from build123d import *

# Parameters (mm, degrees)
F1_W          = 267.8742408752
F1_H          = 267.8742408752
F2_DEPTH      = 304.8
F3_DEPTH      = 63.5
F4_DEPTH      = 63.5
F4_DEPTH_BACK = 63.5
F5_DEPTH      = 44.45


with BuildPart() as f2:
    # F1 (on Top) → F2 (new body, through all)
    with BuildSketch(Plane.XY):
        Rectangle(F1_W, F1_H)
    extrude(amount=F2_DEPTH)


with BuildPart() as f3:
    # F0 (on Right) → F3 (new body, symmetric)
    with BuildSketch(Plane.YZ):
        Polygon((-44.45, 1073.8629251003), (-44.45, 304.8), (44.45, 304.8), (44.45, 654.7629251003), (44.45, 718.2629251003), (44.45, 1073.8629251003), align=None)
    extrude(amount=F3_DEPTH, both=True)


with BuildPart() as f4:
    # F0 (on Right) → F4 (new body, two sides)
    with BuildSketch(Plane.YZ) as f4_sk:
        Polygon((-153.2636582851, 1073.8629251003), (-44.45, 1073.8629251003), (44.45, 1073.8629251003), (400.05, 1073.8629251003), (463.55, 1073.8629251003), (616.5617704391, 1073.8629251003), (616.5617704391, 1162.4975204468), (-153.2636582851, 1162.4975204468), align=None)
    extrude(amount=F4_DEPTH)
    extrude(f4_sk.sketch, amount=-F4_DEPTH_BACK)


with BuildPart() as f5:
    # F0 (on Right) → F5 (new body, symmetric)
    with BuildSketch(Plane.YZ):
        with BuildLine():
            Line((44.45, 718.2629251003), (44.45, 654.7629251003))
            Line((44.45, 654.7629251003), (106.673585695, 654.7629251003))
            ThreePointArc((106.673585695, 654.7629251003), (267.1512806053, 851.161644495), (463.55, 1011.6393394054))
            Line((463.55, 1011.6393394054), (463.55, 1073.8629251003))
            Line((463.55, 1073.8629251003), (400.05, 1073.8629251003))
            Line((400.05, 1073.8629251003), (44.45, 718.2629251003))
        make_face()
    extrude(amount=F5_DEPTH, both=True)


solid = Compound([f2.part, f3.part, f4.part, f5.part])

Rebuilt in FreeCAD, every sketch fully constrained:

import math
import FreeCAD as App
import Part
import Sketcher
from FreeCAD import Vector
Q = App.Units.Quantity

doc = App.newDocument("Part")
body = doc.addObject("PartDesign::Body", "Body")

# Sketch on XY plane
sketch1 = body.newObject("Sketcher::SketchObject", "Sketch")
sketch1.AttachmentSupport = (doc.getObject("XY_Plane"), [""])
sketch1.MapMode = "FlatFace"
sketch1.addGeometry([
    Part.LineSegment(Vector(-134, 134, 0), Vector(-134, -134, 0)),
    Part.LineSegment(Vector(-134, -134, 0), Vector(134, -134, 0)),
    Part.LineSegment(Vector(134, -134, 0), Vector(134, 134, 0)),
    Part.LineSegment(Vector(134, 134, 0), Vector(-134, 134, 0)),
], False)
sketch1.addConstraint([
    Sketcher.Constraint("Coincident", 0, 2, 1, 1),
    Sketcher.Constraint("Coincident", 1, 2, 2, 1),
    Sketcher.Constraint("Coincident", 2, 2, 3, 1),
    Sketcher.Constraint("Coincident", 3, 2, 0, 1),
    Sketcher.Constraint("Vertical", 0),
    Sketcher.Constraint("Horizontal", 1),
    Sketcher.Constraint("Vertical", 2),
    Sketcher.Constraint("Horizontal", 3),
    Sketcher.Constraint("Symmetric", 0, 2, 2, 2, -1, 1),
    Sketcher.Constraint("Equal", 3, 0),
    Sketcher.Constraint("DistanceX", 1, 1, 1, 2, Q("267.874241 mm")),
])
pad1 = body.newObject("PartDesign::Pad", "Pad")
pad1.Profile = sketch1
pad1.Length = Q("12 in")
body2 = doc.addObject("PartDesign::Body", "Body001")

# Sketch on YZ plane
sketch2 = body2.newObject("Sketcher::SketchObject", "Sketch001")
sketch2.AttachmentSupport = (doc.getObject("YZ_Plane001"), [""])
sketch2.MapMode = "FlatFace"
sketch2.addGeometry([
    Part.LineSegment(Vector(-44, 1074, 0), Vector(-44, 305, 0)),
    Part.LineSegment(Vector(-44, 305, 0), Vector(44, 305, 0)),
    Part.LineSegment(Vector(44, 305, 0), Vector(44, 1074, 0)),
    Part.LineSegment(Vector(44, 1074, 0), Vector(-44, 1074, 0)),
], False)
sketch2.addConstraint([
    Sketcher.Constraint("Coincident", 0, 2, 1, 1),
    Sketcher.Constraint("Coincident", 1, 2, 2, 1),
    Sketcher.Constraint("Coincident", 2, 2, 3, 1),
    Sketcher.Constraint("Coincident", 3, 2, 0, 1),
    Sketcher.Constraint("Vertical", 0),
    Sketcher.Constraint("Horizontal", 1),
    Sketcher.Constraint("Vertical", 2),
    Sketcher.Constraint("Horizontal", 3),
    Sketcher.Constraint("DistanceX", 1, 1, 1, 2, Q("3.5 in")),
    Sketcher.Constraint("DistanceY", -1, 1, 0, 2, Q("12 in")),
    Sketcher.Constraint("DistanceX", 0, 2, -1, 1, Q("1.75 in")),
    Sketcher.Constraint("DistanceY", 0, 2, 0, 1, Q("769.062925 mm")),
])
pad2 = body2.newObject("PartDesign::Pad", "Pad001")
pad2.Profile = sketch2
pad2.Length = Q("5 in")
pad2.Midplane = True
body3 = doc.addObject("PartDesign::Body", "Body002")

# Sketch on YZ plane
sketch3 = body3.newObject("Sketcher::SketchObject", "Sketch002")
sketch3.AttachmentSupport = (doc.getObject("YZ_Plane002"), [""])
sketch3.MapMode = "FlatFace"
sketch3.addGeometry([
    Part.LineSegment(Vector(-153, 1074, 0), Vector(617, 1074, 0)),
    Part.LineSegment(Vector(617, 1074, 0), Vector(617, 1162, 0)),
    Part.LineSegment(Vector(617, 1162, 0), Vector(-153, 1162, 0)),
    Part.LineSegment(Vector(-153, 1162, 0), Vector(-153, 1074, 0)),
], False)
sketch3.addConstraint([
    Sketcher.Constraint("Coincident", 0, 2, 1, 1),
    Sketcher.Constraint("Coincident", 1, 2, 2, 1),
    Sketcher.Constraint("Coincident", 2, 2, 3, 1),
    Sketcher.Constraint("Coincident", 3, 2, 0, 1),
    Sketcher.Constraint("Horizontal", 0),
    Sketcher.Constraint("Vertical", 1),
    Sketcher.Constraint("Horizontal", 2),
    Sketcher.Constraint("Vertical", 3),
    Sketcher.Constraint("DistanceX", 0, 1, 0, 2, Q("769.825429 mm")),
    Sketcher.Constraint("DistanceY", 1, 1, 1, 2, Q("88.634595 mm")),
    Sketcher.Constraint("DistanceX", -1, 1, 0, 2, Q("616.56177 mm")),
    Sketcher.Constraint("DistanceY", -1, 1, 1, 2, Q("1162.49752 mm")),
])
pad3 = body3.newObject("PartDesign::Pad", "Pad002")
pad3.Profile = sketch3
pad3.Type = "TwoLengths"
pad3.Length = Q("2.5 in")
pad3.Length2 = Q("2.5 in")
body4 = doc.addObject("PartDesign::Body", "Body003")

# Sketch on YZ plane
sketch4 = body4.newObject("Sketcher::SketchObject", "Sketch003")
sketch4.AttachmentSupport = (doc.getObject("YZ_Plane003"), [""])
sketch4.MapMode = "FlatFace"
sketch4.addGeometry([
    Part.LineSegment(Vector(44, 718, 0), Vector(44, 655, 0)),  # 0
    Part.LineSegment(Vector(44, 655, 0), Vector(107, 655, 0)),  # 1
    Part.ArcOfCircle(Part.Circle(Vector(1163, -44, 0), Vector(0, 0, 1), 1266), math.radians(124), math.radians(146)),  # 2
    Part.LineSegment(Vector(464, 1012, 0), Vector(464, 1074, 0)),  # 3
    Part.LineSegment(Vector(464, 1074, 0), Vector(400, 1074, 0)),  # 4
    Part.LineSegment(Vector(400, 1074, 0), Vector(44, 718, 0)),  # 5
], False)
sketch4.addConstraint([
    Sketcher.Constraint("Coincident", 0, 2, 1, 1),
    Sketcher.Constraint("Coincident", 1, 2, 2, 2),
    Sketcher.Constraint("Coincident", 2, 1, 3, 1),
    Sketcher.Constraint("Coincident", 3, 2, 4, 1),
    Sketcher.Constraint("Coincident", 4, 2, 5, 1),
    Sketcher.Constraint("Coincident", 5, 2, 0, 1),
    Sketcher.Constraint("Vertical", 0),
    Sketcher.Constraint("Horizontal", 1),
    Sketcher.Constraint("Vertical", 3),
    Sketcher.Constraint("Horizontal", 4),
    Sketcher.Constraint("Equal", 4, 0),
    Sketcher.Constraint("Equal", 1, 3),
    Sketcher.Constraint("DistanceX", 4, 2, 4, 1, Q("2.5 in")),
    Sketcher.Constraint("Angle", 5, Q("-135 deg")),
    Sketcher.Constraint("DistanceX", 0, 2, 4, 2, Q("14 in")),
    Sketcher.Constraint("DistanceX", -1, 1, 0, 2, Q("1.75 in")),
    Sketcher.Constraint("Radius", 2, Q("1266.250936 mm")),
    Sketcher.Constraint("DistanceX", 1, 1, 1, 2, Q("62.223586 mm")),
    Sketcher.Constraint("DistanceY", 2, 3, -1, 1, Q("44.212979 mm")),
])
pad4 = body4.newObject("PartDesign::Pad", "Pad003")
pad4.Profile = sketch4
pad4.Length = Q("3.5 in")
pad4.Midplane = True

doc.recompute()
